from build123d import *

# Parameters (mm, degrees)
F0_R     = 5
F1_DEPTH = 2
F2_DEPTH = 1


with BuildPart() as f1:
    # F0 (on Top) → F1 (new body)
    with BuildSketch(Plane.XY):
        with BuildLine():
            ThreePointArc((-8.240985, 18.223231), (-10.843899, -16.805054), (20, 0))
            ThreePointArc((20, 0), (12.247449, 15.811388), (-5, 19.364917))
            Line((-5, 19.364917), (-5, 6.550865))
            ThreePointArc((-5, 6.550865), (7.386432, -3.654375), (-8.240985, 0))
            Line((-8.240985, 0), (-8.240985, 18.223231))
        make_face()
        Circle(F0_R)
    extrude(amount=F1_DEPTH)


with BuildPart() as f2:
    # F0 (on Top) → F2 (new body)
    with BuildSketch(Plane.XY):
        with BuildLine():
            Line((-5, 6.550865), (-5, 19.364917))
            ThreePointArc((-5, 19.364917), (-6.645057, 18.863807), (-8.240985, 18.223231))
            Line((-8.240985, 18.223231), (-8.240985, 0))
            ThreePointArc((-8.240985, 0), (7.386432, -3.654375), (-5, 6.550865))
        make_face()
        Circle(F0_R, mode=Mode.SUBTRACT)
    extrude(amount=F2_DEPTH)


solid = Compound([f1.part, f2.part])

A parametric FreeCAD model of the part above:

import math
import FreeCAD as App
import Part
import Sketcher

V = App.Vector
Q = App.Units.Quantity

doc = App.newDocument("Part")
params = doc.addObject("Spreadsheet::Sheet", "Params")
for row, (alias, value) in enumerate([
    ("sketch1_diameter", "10 mm"),
    ("sketch1_radius", "20 mm"),
    ("pad1_length", "2 mm"),
    ("sketch2_diameter", "10 mm"),
    ("pad2_length", "1 mm"),
], start=1):
    params.set(f"A{row}", alias)
    params.set(f"B{row}", "=" + value)
    params.setAlias(f"B{row}", alias)

body = doc.addObject("PartDesign::Body", "Body")
body.AllowCompound = True

sketch1 = body.newObject("Sketcher::SketchObject", "Sketch")
sketch1.AttachmentSupport = (doc.getObject("XY_Plane"), [""])
sketch1.MapMode = "FlatFace"
sketch1.addGeometry([
    Part.ArcOfCircle(Part.Circle(V(0, 0, 0), V(0, 0, 1), 20), math.radians(114), math.radians(360)),
    Part.ArcOfCircle(Part.Circle(V(0, 0, 0), V(0, 0, 1), 20), math.radians(0), math.radians(104)),
    Part.LineSegment(V(-5, 19, 0), V(-5, 7, 0)),
    Part.ArcOfCircle(Part.Circle(V(0, 0, 0), V(0, 0, 1), 8), math.radians(180), math.radians(487)),
    Part.LineSegment(V(-8, 0, 0), V(-8, 18, 0)),
    Part.Circle(V(0, 0, 0), V(0, 0, 1), 5),
], False)
sketch1.addConstraint([
    Sketcher.Constraint("Tangent", 0, 2, 1, 1),
    Sketcher.Constraint("Coincident", 1, 2, 2, 1),
    Sketcher.Constraint("Coincident", 2, 2, 3, 2),
    Sketcher.Constraint("Tangent", 3, 1, 4, 1),
    Sketcher.Constraint("Coincident", 4, 2, 0, 1),
    Sketcher.Constraint("Vertical", 2),
    Sketcher.Constraint("Vertical", 4),
    Sketcher.Constraint("Coincident", 0, 3, -1, 1),
    Sketcher.Constraint("Coincident", 3, 3, -1, 1),
    Sketcher.Constraint("Coincident", 5, 3, -1, 1),
    Sketcher.Constraint("Equal", 0, 1),
    Sketcher.Constraint("PointOnObject", 0, 2, -1),
    Sketcher.Constraint("Diameter", 5, Q("10 mm")),
    Sketcher.Constraint("Radius", 0, Q("20 mm")),
    Sketcher.Constraint("DistanceX", 1, 2, -1, 1, Q("5 mm")),
    Sketcher.Constraint("Radius", 3, Q("8.240985 mm")),
])
sketch1.setExpression("Constraints[12]", "Params.sketch1_diameter")
sketch1.setExpression("Constraints[13]", "Params.sketch1_radius")
pad1 = body.newObject("PartDesign::Pad", "Pad")
pad1.Profile = sketch1
pad1.setExpression("Length", "Params.pad1_length")
body2 = doc.addObject("PartDesign::Body", "Body001")

sketch2 = body2.newObject("Sketcher::SketchObject", "Sketch001")
sketch2.AttachmentSupport = (doc.getObject("XY_Plane001"), [""])
sketch2.MapMode = "FlatFace"
sketch2.addGeometry([
    Part.LineSegment(V(-5, 6.6, 0), V(-5, 19.4, 0)),
    Part.ArcOfCircle(Part.Circle(V(0, 0, 0), V(0, 0, 1), 20), math.radians(104.48), math.radians(114.33)),
    Part.LineSegment(V(-8.2, 18.2, 0), V(-8.2, 0, 0)),
    Part.ArcOfCircle(Part.Circle(V(0, 0, 0), V(0, 0, 1), 8.2), math.radians(180), math.radians(487)),
    Part.Circle(V(0, 0, 0), V(0, 0, 1), 5),
], False)
sketch2.addConstraint([
    Sketcher.Constraint("Coincident", 0, 2, 1, 1),
    Sketcher.Constraint("Coincident", 1, 2, 2, 1),
    Sketcher.Constraint("Tangent", 2, 2, 3, 1),
    Sketcher.Constraint("Coincident", 3, 2, 0, 1),
    Sketcher.Constraint("Vertical", 0),
    Sketcher.Constraint("Vertical", 2),
    Sketcher.Constraint("Coincident", 1, 3, -1, 1),
    Sketcher.Constraint("Coincident", 3, 3, -1, 1),
    Sketcher.Constraint("Coincident", 4, 3, -1, 1),
    Sketcher.Constraint("Diameter", 4, Q("10 mm")),
    Sketcher.Constraint("DistanceX", 0, 2, -1, 1, Q("5 mm")),
    Sketcher.Constraint("Radius", 1, Q("19.999994 mm")),
    Sketcher.Constraint("Radius", 3, Q("8.240985 mm")),
])
sketch2.setExpression("Constraints[9]", "Params.sketch2_diameter")
pad2 = body2.newObject("PartDesign::Pad", "Pad001")
pad2.Profile = sketch2
pad2.setExpression("Length", "Params.pad2_length")

doc.recompute()
